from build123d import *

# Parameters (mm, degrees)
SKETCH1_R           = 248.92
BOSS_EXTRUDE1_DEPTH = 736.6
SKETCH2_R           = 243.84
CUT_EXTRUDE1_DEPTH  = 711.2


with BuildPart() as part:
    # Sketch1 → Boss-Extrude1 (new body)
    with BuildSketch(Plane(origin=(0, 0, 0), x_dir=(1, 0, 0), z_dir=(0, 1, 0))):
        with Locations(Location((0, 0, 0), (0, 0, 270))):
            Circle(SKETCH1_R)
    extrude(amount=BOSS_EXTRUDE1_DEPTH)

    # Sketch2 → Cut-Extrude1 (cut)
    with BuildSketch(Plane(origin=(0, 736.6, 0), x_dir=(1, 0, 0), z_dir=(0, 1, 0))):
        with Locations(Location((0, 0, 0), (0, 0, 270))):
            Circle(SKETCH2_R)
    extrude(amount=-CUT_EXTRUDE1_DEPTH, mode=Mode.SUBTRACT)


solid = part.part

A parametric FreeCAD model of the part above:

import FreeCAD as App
import Part
import Sketcher

V = App.Vector
Q = App.Units.Quantity

doc = App.newDocument("Part")
body = doc.addObject("PartDesign::Body", "Body")

sketch1 = doc.addObject("Sketcher::SketchObject", "Sketch")
body.addObject(sketch1)
sketch1.AttachmentSupport = (doc.XZ_Plane, [""])
sketch1.MapMode = "FlatFace"
sketch1.addGeometry(Part.Circle(V(0, 0, 0), V(0, 0, 1), 249), False)
sketch1.addConstraint([
    Sketcher.Constraint("Coincident", 0, 3, -1, 1),
    Sketcher.Constraint("Diameter", 0, Q("19.6 in")),
])
pad1 = doc.addObject("PartDesign::Pad", "Pad")
body.addObject(pad1)
pad1.Profile = sketch1
pad1.Length = Q("29 in")
pad1.Reversed = True

sketch2 = doc.addObject("Sketcher::SketchObject", "Sketch001")
body.addObject(sketch2)
sketch2.AttachmentSupport = (doc.XZ_Plane, [""])
sketch2.MapMode = "FlatFace"
sketch2.AttachmentOffset = App.Placement(V(0, 0, -29 * 25.4), App.Rotation())
sketch2.addGeometry(Part.Circle(V(0, 0, 0), V(0, 0, 1), 244), False)
sketch2.addConstraint([
    Sketcher.Constraint("Coincident", 0, 3, -1, 1),
    Sketcher.Constraint("Diameter", 0, Q("19.2 in")),
])
pocket1 = doc.addObject("PartDesign::Pocket", "Pocket")
body.addObject(pocket1)
pocket1.Profile = sketch2
pocket1.Length = Q("28 in")
pocket1.Reversed = True

doc.recompute()
